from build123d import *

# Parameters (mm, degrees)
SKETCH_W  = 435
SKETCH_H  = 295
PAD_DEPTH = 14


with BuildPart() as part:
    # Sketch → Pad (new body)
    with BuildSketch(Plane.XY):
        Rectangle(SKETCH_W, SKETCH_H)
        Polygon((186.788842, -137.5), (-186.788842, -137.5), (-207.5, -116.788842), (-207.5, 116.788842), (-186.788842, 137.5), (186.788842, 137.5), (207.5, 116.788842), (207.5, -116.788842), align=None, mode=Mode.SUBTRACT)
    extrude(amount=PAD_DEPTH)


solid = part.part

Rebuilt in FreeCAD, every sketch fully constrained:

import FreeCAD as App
import Part
import Sketcher
Q = App.Units.Quantity


def add_polygon(sketch, points):
    """Adds a closed chain of lines whose ends are joined by coincident constraints."""
    first, n = sketch.GeometryCount, len(points)
    for a, b in zip(points, points[1:] + points[:1]):
        sketch.addGeometry(Part.LineSegment(App.Vector(*a, 0), App.Vector(*b, 0)), False)
    for i in range(n):
        sketch.addConstraint(Sketcher.Constraint("Coincident", first + i, 2, first + (i + 1) % n, 1))

doc = App.newDocument("Part")
body = doc.addObject("PartDesign::Body", "Body")

# Sketch on XY plane
sketch1 = body.newObject("Sketcher::SketchObject", "Sketch")
sketch1.AttachmentSupport = (doc.getObject("XY_Plane"), [""])
sketch1.MapMode = "FlatFace"
add_polygon(sketch1, [(-217.5, 147.5), (-217.5, -147.5), (217.5, -147.5), (217.5, 147.5)])  # lines 0-3
add_polygon(sketch1, [(207.5, -116.788842), (186.788842, -137.5), (-186.788842, -137.5), (-207.5, -116.788842), (-207.5, 116.788842), (-186.788842, 137.5), (186.788842, 137.5), (207.5, 116.788842)])  # lines 4-11
sketch1.addConstraint([
    Sketcher.Constraint("Vertical", 0),
    Sketcher.Constraint("Horizontal", 1),
    Sketcher.Constraint("Vertical", 2),
    Sketcher.Constraint("Horizontal", 3),
    Sketcher.Constraint("Horizontal", 5),
    Sketcher.Constraint("Vertical", 7),
    Sketcher.Constraint("Horizontal", 9),
    Sketcher.Constraint("Vertical", 11),
    Sketcher.Constraint("Symmetric", 0, 2, 2, 2, -1, 1),
    Sketcher.Constraint("Symmetric", 4, 2, 8, 2, -1, 1),
    Sketcher.Constraint("Symmetric", 6, 2, 10, 2, -1, 1),
    Sketcher.Constraint("Perpendicular", 4, 6),
    Sketcher.Constraint("Perpendicular", 6, 8),
    Sketcher.Constraint("Perpendicular", 8, 10),
    Sketcher.Constraint("Horizontal", 7, 2, 10, 2),
    Sketcher.Constraint("Vertical", 5, 2, 8, 2),
    Sketcher.Constraint("DistanceX", 1, 1, 1, 2, Q("435 mm")),
    Sketcher.Constraint("DistanceY", 0, 2, 0, 1, Q("295 mm")),
    Sketcher.Constraint("DistanceY", 1, 2, 4, 2, Q("10 mm")),
    Sketcher.Constraint("DistanceX", 0, 2, 6, 2, Q("10 mm")),
    Sketcher.Constraint("Distance", 4, Q("29.290001 mm")),
])
pad1 = body.newObject("PartDesign::Pad", "Pad")
pad1.Profile = sketch1
pad1.Length = 14

doc.recompute()
